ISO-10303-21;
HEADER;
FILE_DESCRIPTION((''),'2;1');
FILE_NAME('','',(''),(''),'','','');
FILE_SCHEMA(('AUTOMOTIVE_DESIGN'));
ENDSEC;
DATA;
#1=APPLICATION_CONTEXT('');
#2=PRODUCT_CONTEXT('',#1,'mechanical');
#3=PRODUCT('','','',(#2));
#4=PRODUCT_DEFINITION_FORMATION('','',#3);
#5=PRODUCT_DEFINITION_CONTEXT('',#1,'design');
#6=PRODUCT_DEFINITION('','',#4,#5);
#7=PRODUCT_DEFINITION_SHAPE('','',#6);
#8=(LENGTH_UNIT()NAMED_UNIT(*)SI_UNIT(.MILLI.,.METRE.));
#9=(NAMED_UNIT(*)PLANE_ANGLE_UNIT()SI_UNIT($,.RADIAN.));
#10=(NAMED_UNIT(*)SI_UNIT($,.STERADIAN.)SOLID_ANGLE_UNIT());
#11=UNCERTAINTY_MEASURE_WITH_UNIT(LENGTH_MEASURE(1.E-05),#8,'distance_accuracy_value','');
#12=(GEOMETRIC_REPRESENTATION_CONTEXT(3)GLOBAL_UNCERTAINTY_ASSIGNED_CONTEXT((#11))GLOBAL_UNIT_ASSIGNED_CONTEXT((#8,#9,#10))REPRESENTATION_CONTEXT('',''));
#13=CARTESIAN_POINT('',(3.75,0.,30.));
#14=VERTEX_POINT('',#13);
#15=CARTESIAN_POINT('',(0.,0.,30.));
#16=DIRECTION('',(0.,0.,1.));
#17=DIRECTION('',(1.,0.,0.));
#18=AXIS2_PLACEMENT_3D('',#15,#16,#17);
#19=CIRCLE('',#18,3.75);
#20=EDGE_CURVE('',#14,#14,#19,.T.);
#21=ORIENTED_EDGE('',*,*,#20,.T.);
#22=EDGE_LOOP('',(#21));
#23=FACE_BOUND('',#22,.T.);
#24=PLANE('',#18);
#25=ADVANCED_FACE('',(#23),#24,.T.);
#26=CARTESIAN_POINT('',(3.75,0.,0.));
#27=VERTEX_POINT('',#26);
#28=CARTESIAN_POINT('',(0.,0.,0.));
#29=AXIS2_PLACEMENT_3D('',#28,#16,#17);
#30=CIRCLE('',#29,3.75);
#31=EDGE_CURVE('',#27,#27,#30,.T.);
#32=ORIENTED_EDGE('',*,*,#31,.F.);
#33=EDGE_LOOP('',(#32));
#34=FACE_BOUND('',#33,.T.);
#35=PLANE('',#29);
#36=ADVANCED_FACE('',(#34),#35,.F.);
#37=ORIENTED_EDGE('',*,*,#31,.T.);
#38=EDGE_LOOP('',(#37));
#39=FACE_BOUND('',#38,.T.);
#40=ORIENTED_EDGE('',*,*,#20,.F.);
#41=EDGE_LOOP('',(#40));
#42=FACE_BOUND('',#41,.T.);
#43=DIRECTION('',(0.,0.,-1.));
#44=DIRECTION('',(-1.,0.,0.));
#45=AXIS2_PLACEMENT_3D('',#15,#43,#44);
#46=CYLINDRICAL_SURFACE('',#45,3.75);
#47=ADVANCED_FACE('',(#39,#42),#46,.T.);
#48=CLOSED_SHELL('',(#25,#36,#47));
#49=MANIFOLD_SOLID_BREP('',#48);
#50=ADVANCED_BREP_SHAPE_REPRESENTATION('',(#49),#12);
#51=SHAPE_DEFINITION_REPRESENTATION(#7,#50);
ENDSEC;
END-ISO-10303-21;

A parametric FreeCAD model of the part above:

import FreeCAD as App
import Part
import Sketcher

V = App.Vector

doc = App.newDocument("Part")
params = doc.addObject("Spreadsheet::Sheet", "Params")
for row, (alias, value) in enumerate([
    ("sketch1_diameter", "7.5 mm"),
    ("pad1_length", "30 mm"),
], start=1):
    params.set(f"A{row}", alias)
    params.set(f"B{row}", "=" + value)
    params.setAlias(f"B{row}", alias)

body = doc.addObject("PartDesign::Body", "Body")

# Sketch on XY plane
sketch1 = doc.addObject("Sketcher::SketchObject", "Sketch")
body.addObject(sketch1)
sketch1.AttachmentSupport = (doc.XY_Plane, [""])
sketch1.MapMode = "FlatFace"
sketch1.addGeometry(Part.Circle(V(0, 0, 0), V(0, 0, 1), 3.8), False)
sketch1.addConstraint([
    Sketcher.Constraint("Coincident", 0, 3, -1, 1),
    Sketcher.Constraint("Diameter", 0, 7.5),
])
sketch1.setExpression("Constraints[1]", "Params.sketch1_diameter")
pad1 = doc.addObject("PartDesign::Pad", "Pad")
body.addObject(pad1)
pad1.Profile = sketch1
pad1.setExpression("Length", "Params.pad1_length")

doc.recompute()
